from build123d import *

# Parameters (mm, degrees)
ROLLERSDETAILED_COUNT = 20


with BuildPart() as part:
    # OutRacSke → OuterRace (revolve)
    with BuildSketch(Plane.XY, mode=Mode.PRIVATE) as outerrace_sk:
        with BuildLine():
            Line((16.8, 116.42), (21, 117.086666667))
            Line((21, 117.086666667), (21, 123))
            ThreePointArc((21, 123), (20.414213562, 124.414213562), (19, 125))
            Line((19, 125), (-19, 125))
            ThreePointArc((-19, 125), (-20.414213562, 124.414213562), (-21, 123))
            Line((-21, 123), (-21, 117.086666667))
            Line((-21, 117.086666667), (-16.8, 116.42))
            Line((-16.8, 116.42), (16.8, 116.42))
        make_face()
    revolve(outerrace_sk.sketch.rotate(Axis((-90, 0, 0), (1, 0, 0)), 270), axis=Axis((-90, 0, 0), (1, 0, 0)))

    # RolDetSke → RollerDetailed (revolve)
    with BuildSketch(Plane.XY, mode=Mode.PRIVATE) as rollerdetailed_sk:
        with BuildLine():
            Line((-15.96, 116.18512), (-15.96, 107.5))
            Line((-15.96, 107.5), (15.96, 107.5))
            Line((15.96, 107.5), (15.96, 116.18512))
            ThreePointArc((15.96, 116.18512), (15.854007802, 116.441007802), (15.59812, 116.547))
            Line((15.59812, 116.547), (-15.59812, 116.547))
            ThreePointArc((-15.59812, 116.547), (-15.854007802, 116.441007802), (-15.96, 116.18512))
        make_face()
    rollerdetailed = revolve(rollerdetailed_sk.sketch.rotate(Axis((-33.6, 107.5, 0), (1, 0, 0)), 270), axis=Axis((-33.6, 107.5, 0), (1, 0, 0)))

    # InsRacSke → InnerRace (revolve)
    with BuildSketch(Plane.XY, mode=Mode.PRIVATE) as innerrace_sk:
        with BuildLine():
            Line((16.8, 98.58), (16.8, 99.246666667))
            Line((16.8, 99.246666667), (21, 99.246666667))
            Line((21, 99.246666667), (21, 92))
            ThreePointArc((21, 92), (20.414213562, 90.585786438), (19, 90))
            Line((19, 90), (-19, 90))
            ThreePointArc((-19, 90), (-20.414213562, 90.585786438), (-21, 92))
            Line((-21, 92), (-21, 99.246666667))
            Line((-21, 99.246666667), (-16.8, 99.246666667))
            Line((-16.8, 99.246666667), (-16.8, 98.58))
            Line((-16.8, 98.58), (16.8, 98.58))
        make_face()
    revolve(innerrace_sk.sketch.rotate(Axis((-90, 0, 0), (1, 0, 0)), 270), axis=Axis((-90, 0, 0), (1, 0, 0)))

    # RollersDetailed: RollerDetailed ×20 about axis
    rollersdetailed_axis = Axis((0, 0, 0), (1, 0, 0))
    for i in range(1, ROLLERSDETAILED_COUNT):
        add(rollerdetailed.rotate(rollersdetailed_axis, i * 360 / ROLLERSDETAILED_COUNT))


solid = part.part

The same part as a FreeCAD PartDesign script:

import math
import FreeCAD as App
import Part
import Sketcher

V = App.Vector

doc = App.newDocument("Part")
params = doc.addObject("Spreadsheet::Sheet", "Params")
for row, (alias, value) in enumerate([
    ("sketch1_radius", "2 mm"),
    ("sketch1_width", "38 mm"),
    ("sketch1_width2", "33.6 mm"),
    ("revolution_angle", "360 deg"),
    ("sketch2_width", "31.92 mm"),
    ("revolution2_angle", "360 deg"),
    ("sketch3_radius", "2 mm"),
    ("sketch3_width", "38 mm"),
    ("sketch3_width2", "33.6 mm"),
    ("revolution3_angle", "360 deg"),
], start=1):
    params.set(f"A{row}", alias)
    params.set(f"B{row}", "=" + value)
    params.setAlias(f"B{row}", alias)

body = doc.addObject("PartDesign::Body", "Body")

sketch1 = body.newObject("Sketcher::SketchObject", "Sketch")
sketch1.AttachmentSupport = (doc.getObject("XY_Plane"), [""])
sketch1.MapMode = "FlatFace"
sketch1.addGeometry([
    Part.LineSegment(V(16.8, 116.4, 0), V(21, 117.1, 0)),
    Part.LineSegment(V(21, 117.1, 0), V(21, 123, 0)),
    Part.ArcOfCircle(Part.Circle(V(19, 123, 0), V(0, 0, 1), 2), math.radians(0), math.radians(90)),
    Part.LineSegment(V(19, 125, 0), V(-19, 125, 0)),
    Part.ArcOfCircle(Part.Circle(V(-19, 123, 0), V(0, 0, 1), 2), math.radians(90), math.radians(180)),
    Part.LineSegment(V(-21, 123, 0), V(-21, 117.1, 0)),
    Part.LineSegment(V(-21, 117.1, 0), V(-16.8, 116.4, 0)),
    Part.LineSegment(V(-16.8, 116.4, 0), V(16.8, 116.4, 0)),
], False)
sketch1.addConstraint([
    Sketcher.Constraint("Coincident", 0, 2, 1, 1),
    Sketcher.Constraint("Tangent", 1, 2, 2, 1),
    Sketcher.Constraint("Tangent", 2, 2, 3, 1),
    Sketcher.Constraint("Tangent", 3, 2, 4, 1),
    Sketcher.Constraint("Tangent", 4, 2, 5, 1),
    Sketcher.Constraint("Coincident", 5, 2, 6, 1),
    Sketcher.Constraint("Coincident", 6, 2, 7, 1),
    Sketcher.Constraint("Coincident", 7, 2, 0, 1),
    Sketcher.Constraint("Vertical", 1),
    Sketcher.Constraint("Horizontal", 3),
    Sketcher.Constraint("Vertical", 5),
    Sketcher.Constraint("Horizontal", 7),
    Sketcher.Constraint("Equal", 2, 4),
    Sketcher.Constraint("Symmetric", 0, 2, 5, 2, -2),
    Sketcher.Constraint("Equal", 0, 6),
    Sketcher.Constraint("Radius", 2, 2.0),
    Sketcher.Constraint("DistanceX", 3, 2, 3, 1, 38.0),
    Sketcher.Constraint("DistanceX", 7, 1, 7, 2, 33.6),
    Sketcher.Constraint("DistanceY", -1, 1, 2, 3, 123.0),
    Sketcher.Constraint("DistanceY", -1, 1, 6, 2, 116.42),
    Sketcher.Constraint("Distance", 0, 4.252581),
])
sketch1.setExpression("Constraints[15]", "Params.sketch1_radius")
sketch1.setExpression("Constraints[16]", "Params.sketch1_width")
sketch1.setExpression("Constraints[17]", "Params.sketch1_width2")
revolution = body.newObject("PartDesign::Revolution", "Revolution")
revolution.Profile = sketch1
revolution.ReferenceAxis = (sketch1, ["H_Axis"])
revolution.setExpression("Angle", "Params.revolution_angle")

sketch2 = body.newObject("Sketcher::SketchObject", "Sketch001")
sketch2.AttachmentSupport = (doc.getObject("XY_Plane"), [""])
sketch2.MapMode = "FlatFace"
sketch2.addGeometry([
    Part.LineSegment(V(-15.96, 116.19, 0), V(-15.96, 107.5, 0)),
    Part.LineSegment(V(-15.96, 107.5, 0), V(15.96, 107.5, 0)),
    Part.LineSegment(V(15.96, 107.5, 0), V(15.96, 116.19, 0)),
    Part.ArcOfCircle(Part.Circle(V(15.6, 116.19, 0), V(0, 0, 1), 0.36), math.radians(0), math.radians(90)),
    Part.LineSegment(V(15.6, 116.55, 0), V(-15.6, 116.55, 0)),
    Part.ArcOfCircle(Part.Circle(V(-15.6, 116.19, 0), V(0, 0, 1), 0.36), math.radians(90), math.radians(180)),
], False)
sketch2.addGeometry(Part.LineSegment(V(-15.96, 107.5, 0), V(15.96, 107.5, 0)), True)
sketch2.addConstraint([
    Sketcher.Constraint("Coincident", 0, 2, 1, 1),
    Sketcher.Constraint("Coincident", 1, 2, 2, 1),
    Sketcher.Constraint("Tangent", 2, 2, 3, 1),
    Sketcher.Constraint("Tangent", 3, 2, 4, 1),
    Sketcher.Constraint("Tangent", 4, 2, 5, 1),
    Sketcher.Constraint("Tangent", 5, 2, 0, 1),
    Sketcher.Constraint("Vertical", 0),
    Sketcher.Constraint("Horizontal", 1),
    Sketcher.Constraint("Vertical", 2),
    Sketcher.Constraint("Horizontal", 4),
    Sketcher.Constraint("Horizontal", 6),
    Sketcher.Constraint("Coincident", 6, 1, 0, 2),
    Sketcher.Constraint("Equal", 3, 5),
    Sketcher.Constraint("Vertical", 2, 2, 6, 2),
    Sketcher.Constraint("DistanceX", 1, 1, 1, 2, 31.92),
    Sketcher.Constraint("DistanceY", -1, 1, 0, 2, 107.5),
    Sketcher.Constraint("DistanceX", 0, 2, -1, 1, 15.96),
    Sketcher.Constraint("Radius", 3, 0.36188),
    Sketcher.Constraint("DistanceY", -1, 1, 3, 2, 116.547),
])
sketch2.setExpression("Constraints[14]", "Params.sketch2_width")
revolution2 = body.newObject("PartDesign::Revolution", "Revolution001")
revolution2.Profile = sketch2
revolution2.ReferenceAxis = (sketch2, ["Axis0"])
revolution2.setExpression("Angle", "Params.revolution2_angle")

sketch3 = body.newObject("Sketcher::SketchObject", "Sketch002")
sketch3.AttachmentSupport = (doc.getObject("XY_Plane"), [""])
sketch3.MapMode = "FlatFace"
sketch3.addGeometry([
    Part.LineSegment(V(16.8, 99.2, 0), V(16.8, 98.6, 0)),
    Part.LineSegment(V(16.8, 98.6, 0), V(-16.8, 98.6, 0)),
    Part.LineSegment(V(-16.8, 98.6, 0), V(-16.8, 99.2, 0)),
    Part.LineSegment(V(-16.8, 99.2, 0), V(-21, 99.2, 0)),
    Part.LineSegment(V(-21, 99.2, 0), V(-21, 92, 0)),
    Part.ArcOfCircle(Part.Circle(V(-19, 92, 0), V(0, 0, 1), 2), math.radians(-180), math.radians(-90)),
    Part.LineSegment(V(-19, 90, 0), V(19, 90, 0)),
    Part.ArcOfCircle(Part.Circle(V(19, 92, 0), V(0, 0, 1), 2), math.radians(-90), math.radians(0)),
    Part.LineSegment(V(21, 92, 0), V(21, 99.2, 0)),
    Part.LineSegment(V(21, 99.2, 0), V(16.8, 99.2, 0)),
], False)
sketch3.addConstraint([
    Sketcher.Constraint("Coincident", 0, 2, 1, 1),
    Sketcher.Constraint("Coincident", 1, 2, 2, 1),
    Sketcher.Constraint("Coincident", 2, 2, 3, 1),
    Sketcher.Constraint("Coincident", 3, 2, 4, 1),
    Sketcher.Constraint("Tangent", 4, 2, 5, 1),
    Sketcher.Constraint("Tangent", 5, 2, 6, 1),
    Sketcher.Constraint("Tangent", 6, 2, 7, 1),
    Sketcher.Constraint("Tangent", 7, 2, 8, 1),
    Sketcher.Constraint("Coincident", 8, 2, 9, 1),
    Sketcher.Constraint("Coincident", 9, 2, 0, 1),
    Sketcher.Constraint("Vertical", 0),
    Sketcher.Constraint("Horizontal", 1),
    Sketcher.Constraint("Vertical", 2),
    Sketcher.Constraint("Horizontal", 3),
    Sketcher.Constraint("Vertical", 4),
    Sketcher.Constraint("Horizontal", 6),
    Sketcher.Constraint("Vertical", 8),
    Sketcher.Constraint("Horizontal", 9),
    Sketcher.Constraint("Equal", 5, 7),
    Sketcher.Constraint("Symmetric", 3, 2, 8, 2, -2),
    Sketcher.Constraint("Equal", 3, 9),
    Sketcher.Constraint("Radius", 5, 2.0),
    Sketcher.Constraint("DistanceX", 6, 1, 6, 2, 38.0),
    Sketcher.Constraint("DistanceX", 1, 2, 1, 1, 33.6),
    Sketcher.Constraint("DistanceY", -1, 1, 5, 3, 92.0),
    Sketcher.Constraint("DistanceY", -1, 1, 0, 2, 98.58),
    Sketcher.Constraint("DistanceY", 0, 2, 0, 1, 0.666667),
])
sketch3.setExpression("Constraints[21]", "Params.sketch3_radius")
sketch3.setExpression("Constraints[22]", "Params.sketch3_width")
sketch3.setExpression("Constraints[23]", "Params.sketch3_width2")
revolution3 = body.newObject("PartDesign::Revolution", "Revolution002")
revolution3.Profile = sketch3
revolution3.ReferenceAxis = (sketch3, ["H_Axis"])
revolution3.setExpression("Angle", "Params.revolution3_angle")
doc.recompute()

polarpattern = body.newObject("PartDesign::PolarPattern", "PolarPattern")
polarpattern.Originals = [revolution2]
polarpattern.Axis = (doc.getObject("X_Axis"), [""])
polarpattern.Angle = 360
polarpattern.Occurrences = 20
body.Tip = polarpattern

doc.recompute()
